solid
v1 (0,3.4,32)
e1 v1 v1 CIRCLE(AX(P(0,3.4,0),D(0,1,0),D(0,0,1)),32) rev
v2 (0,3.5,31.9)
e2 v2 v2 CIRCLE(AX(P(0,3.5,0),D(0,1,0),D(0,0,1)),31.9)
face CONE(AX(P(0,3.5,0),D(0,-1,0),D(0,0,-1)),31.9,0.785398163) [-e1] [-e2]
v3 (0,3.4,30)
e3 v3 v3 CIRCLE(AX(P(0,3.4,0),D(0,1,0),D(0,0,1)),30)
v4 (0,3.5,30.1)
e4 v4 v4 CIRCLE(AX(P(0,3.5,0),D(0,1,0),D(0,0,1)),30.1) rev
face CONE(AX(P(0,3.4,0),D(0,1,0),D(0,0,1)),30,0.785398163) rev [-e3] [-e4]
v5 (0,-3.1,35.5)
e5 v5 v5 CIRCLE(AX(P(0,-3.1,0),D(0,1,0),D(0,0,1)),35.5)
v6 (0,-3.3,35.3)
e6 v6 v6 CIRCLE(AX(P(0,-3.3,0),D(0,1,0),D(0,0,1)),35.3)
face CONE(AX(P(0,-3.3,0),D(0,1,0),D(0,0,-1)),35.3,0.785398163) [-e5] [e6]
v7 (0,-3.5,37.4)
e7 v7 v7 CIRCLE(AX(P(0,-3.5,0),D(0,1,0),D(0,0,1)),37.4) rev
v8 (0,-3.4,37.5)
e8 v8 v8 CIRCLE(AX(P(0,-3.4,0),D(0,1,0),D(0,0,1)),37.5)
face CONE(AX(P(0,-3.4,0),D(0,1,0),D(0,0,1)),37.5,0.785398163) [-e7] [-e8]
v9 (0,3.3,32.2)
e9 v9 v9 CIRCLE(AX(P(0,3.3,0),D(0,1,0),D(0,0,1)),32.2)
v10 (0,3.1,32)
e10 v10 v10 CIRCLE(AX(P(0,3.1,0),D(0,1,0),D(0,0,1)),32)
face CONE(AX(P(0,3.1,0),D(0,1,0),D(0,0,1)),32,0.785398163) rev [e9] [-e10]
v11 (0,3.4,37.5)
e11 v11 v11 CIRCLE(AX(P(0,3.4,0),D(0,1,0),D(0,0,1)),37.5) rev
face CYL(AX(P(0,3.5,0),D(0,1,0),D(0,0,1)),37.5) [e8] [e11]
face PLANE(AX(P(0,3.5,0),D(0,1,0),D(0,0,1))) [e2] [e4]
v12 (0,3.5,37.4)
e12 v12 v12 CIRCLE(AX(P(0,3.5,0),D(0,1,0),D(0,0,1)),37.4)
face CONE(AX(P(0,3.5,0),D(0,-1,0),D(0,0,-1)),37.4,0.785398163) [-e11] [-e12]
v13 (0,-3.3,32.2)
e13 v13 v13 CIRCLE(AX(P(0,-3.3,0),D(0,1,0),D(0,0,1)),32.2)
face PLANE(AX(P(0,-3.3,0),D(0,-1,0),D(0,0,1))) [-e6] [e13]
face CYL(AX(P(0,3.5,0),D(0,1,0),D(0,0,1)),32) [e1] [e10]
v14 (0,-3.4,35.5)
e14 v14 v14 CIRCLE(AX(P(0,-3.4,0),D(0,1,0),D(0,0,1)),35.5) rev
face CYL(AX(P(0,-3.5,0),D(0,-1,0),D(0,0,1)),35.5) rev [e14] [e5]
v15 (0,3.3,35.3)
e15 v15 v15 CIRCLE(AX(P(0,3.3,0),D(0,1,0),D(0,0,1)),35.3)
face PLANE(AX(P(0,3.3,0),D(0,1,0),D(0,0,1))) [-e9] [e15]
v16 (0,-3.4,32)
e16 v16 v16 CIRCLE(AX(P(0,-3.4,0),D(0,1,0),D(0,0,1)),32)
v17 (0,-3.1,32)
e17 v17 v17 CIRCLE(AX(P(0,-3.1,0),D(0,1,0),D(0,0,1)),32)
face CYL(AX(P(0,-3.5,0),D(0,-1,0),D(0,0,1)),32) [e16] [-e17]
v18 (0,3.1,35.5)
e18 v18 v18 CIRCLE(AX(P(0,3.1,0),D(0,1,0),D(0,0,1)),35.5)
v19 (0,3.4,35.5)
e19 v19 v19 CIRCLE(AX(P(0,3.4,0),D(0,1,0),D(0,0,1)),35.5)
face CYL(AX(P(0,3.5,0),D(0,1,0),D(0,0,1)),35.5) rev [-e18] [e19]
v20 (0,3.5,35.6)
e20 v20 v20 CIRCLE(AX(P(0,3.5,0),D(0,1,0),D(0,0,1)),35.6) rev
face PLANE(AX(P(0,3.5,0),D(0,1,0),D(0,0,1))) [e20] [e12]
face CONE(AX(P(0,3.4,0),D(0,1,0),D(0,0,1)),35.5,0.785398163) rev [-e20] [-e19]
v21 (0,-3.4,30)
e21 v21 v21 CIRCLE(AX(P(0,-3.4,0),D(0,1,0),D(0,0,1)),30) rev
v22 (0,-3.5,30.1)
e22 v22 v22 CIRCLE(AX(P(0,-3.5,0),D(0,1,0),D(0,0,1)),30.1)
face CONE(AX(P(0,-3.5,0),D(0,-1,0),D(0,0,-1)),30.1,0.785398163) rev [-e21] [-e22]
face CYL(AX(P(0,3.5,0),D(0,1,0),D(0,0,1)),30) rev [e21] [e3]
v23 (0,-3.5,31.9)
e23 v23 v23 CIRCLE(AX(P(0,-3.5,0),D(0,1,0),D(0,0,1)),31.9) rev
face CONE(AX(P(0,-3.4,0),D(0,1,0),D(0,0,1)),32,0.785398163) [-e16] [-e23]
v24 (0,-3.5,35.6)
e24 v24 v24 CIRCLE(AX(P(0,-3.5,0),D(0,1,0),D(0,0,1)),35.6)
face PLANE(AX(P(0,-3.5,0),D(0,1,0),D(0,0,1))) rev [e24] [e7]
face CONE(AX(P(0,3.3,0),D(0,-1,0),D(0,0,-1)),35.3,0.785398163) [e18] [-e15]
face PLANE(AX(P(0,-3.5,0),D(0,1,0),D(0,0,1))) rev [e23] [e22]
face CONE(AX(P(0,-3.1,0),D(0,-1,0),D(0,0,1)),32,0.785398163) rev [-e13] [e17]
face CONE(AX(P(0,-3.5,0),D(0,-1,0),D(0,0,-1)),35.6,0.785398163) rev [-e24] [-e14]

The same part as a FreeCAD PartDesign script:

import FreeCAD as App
import Part
import Sketcher

V = App.Vector
Q = App.Units.Quantity


def edges_at(feature, points):
    """Names of the edges that pass closest to the given points."""
    edges = feature.Shape.Edges
    near = lambda p: min(range(len(edges)), key=lambda i: edges[i].distToShape(Part.Vertex(*p))[0])
    return sorted({f"Edge{near(p) + 1}" for p in points})


def add_polygon(sketch, points):
    """Adds a closed chain of lines whose ends are joined by coincident constraints."""
    first, n = sketch.GeometryCount, len(points)
    for a, b in zip(points, points[1:] + points[:1]):
        sketch.addGeometry(Part.LineSegment(App.Vector(*a, 0), App.Vector(*b, 0)), False)
    for i in range(n):
        sketch.addConstraint(Sketcher.Constraint("Coincident", first + i, 2, first + (i + 1) % n, 1))

doc = App.newDocument("Part")
params = doc.addObject("Spreadsheet::Sheet", "Params")
for row, (alias, value) in enumerate([
    ("sketch1_width", "7 mm"),
    ("sketch1_height", "7.5 mm"),
    ("revolution_angle", "360 deg"),
    ("sketch2_width", "0.4 mm"),
    ("sketch2_height", "3.5 mm"),
    ("sketch2_height2", "3.1 mm"),
    ("groove_angle", "360 deg"),
    ("chamfer_size", "0.1 mm"),
], start=1):
    params.set(f"A{row}", alias)
    params.set(f"B{row}", "=" + value)
    params.setAlias(f"B{row}", alias)

body = doc.addObject("PartDesign::Body", "Body")

sketch1 = body.newObject("Sketcher::SketchObject", "Sketch")
sketch1.AttachmentSupport = (doc.getObject("YZ_Plane"), [""])
sketch1.MapMode = "FlatFace"
add_polygon(sketch1, [(4, -30), (-4, -30), (-4, -38), (4, -38)])
sketch1.addConstraint([
    Sketcher.Constraint("Horizontal", 0),
    Sketcher.Constraint("Vertical", 1),
    Sketcher.Constraint("Horizontal", 2),
    Sketcher.Constraint("Vertical", 3),
    Sketcher.Constraint("DistanceX", 0, 2, 0, 1, Q("7 mm")),
    Sketcher.Constraint("DistanceY", 1, 2, 1, 1, Q("7.5 mm")),
    Sketcher.Constraint("DistanceY", 0, 2, -1, 1, Q("30 mm")),
    Sketcher.Constraint("DistanceX", 0, 2, -1, 1, Q("3.5 mm")),
])
sketch1.setExpression("Constraints[8]", "Params.sketch1_width")
sketch1.setExpression("Constraints[9]", "Params.sketch1_height")
revolution = body.newObject("PartDesign::Revolution", "Revolution")
revolution.Profile = sketch1
revolution.ReferenceAxis = (sketch1, ["H_Axis"])
revolution.setExpression("Angle", "Params.revolution_angle")

sketch2 = body.newObject("Sketcher::SketchObject", "Sketch001")
sketch2.AttachmentSupport = (doc.getObject("YZ_Plane"), [""])
sketch2.MapMode = "FlatFace"
add_polygon(sketch2, [(3.3, -35.3), (3.1, -35.5), (3.5, -35.5), (3.5, -32), (3.1, -32), (3.3, -32.2)])
sketch2.addConstraint([
    Sketcher.Constraint("Horizontal", 1),
    Sketcher.Constraint("Vertical", 2),
    Sketcher.Constraint("Horizontal", 3),
    Sketcher.Constraint("Vertical", 5),
    Sketcher.Constraint("Perpendicular", 0, 4),
    Sketcher.Constraint("Vertical", 0, 2, 3, 2),
    Sketcher.Constraint("Equal", 0, 4),
    Sketcher.Constraint("DistanceX", 1, 1, 1, 2, Q("0.4 mm")),
    Sketcher.Constraint("DistanceY", 2, 1, 2, 2, Q("3.5 mm")),
    Sketcher.Constraint("DistanceY", 5, 2, 5, 1, Q("3.1 mm")),
    Sketcher.Constraint("DistanceY", 2, 2, -1, 1, Q("32 mm")),
    Sketcher.Constraint("DistanceX", -1, 1, 0, 2, Q("3.1 mm")),
])
sketch2.setExpression("Constraints[13]", "Params.sketch2_width")
sketch2.setExpression("Constraints[14]", "Params.sketch2_height")
sketch2.setExpression("Constraints[15]", "Params.sketch2_height2")
groove = body.newObject("PartDesign::Groove", "Groove")
groove.Profile = sketch2
groove.ReferenceAxis = (sketch2, ["H_Axis"])
groove.setExpression("Angle", "Params.groove_angle")
doc.recompute()

mirrored = body.newObject("PartDesign::Mirrored", "Mirrored")
mirrored.Originals = [groove]
mirrored.MirrorPlane = (doc.getObject("XZ_Plane"), [""])
body.Tip = mirrored
doc.recompute()

chamfer = body.newObject("PartDesign::Chamfer", "Chamfer")
chamfer.Base = (mirrored, edges_at(mirrored, [
    (0, 3.5, 35.5),
    (0, 3.5, 32),
    (0, -3.5, 35.5),
    (0, -3.5, 32),
    (0, 3.5, 37.5),
    (0, -3.5, 37.5),
    (0, -3.5, 30),
    (0, 3.5, 30),
]))
chamfer.setExpression("Size", "Params.chamfer_size")

doc.recompute()
